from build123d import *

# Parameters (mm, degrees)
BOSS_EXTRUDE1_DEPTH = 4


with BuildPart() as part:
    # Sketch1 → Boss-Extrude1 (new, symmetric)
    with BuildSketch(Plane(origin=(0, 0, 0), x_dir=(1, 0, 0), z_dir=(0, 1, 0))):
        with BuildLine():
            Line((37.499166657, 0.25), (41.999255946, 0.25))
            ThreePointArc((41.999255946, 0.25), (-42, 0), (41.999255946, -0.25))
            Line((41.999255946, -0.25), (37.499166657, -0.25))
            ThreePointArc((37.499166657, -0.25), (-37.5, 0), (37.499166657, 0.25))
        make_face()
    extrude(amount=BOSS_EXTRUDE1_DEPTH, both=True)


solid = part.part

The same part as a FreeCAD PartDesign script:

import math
import FreeCAD as App
import Part
import Sketcher
from FreeCAD import Vector
Q = App.Units.Quantity

doc = App.newDocument("Part")
body = doc.addObject("PartDesign::Body", "Body")

# Sketch on XZ plane
sketch1 = doc.addObject("Sketcher::SketchObject", "Sketch")
body.addObject(sketch1)
sketch1.AttachmentSupport = (doc.XZ_Plane, [""])
sketch1.MapMode = "FlatFace"
sketch1.addGeometry(Part.LineSegment(Vector(37.499167, -0.25, 0), Vector(41.999256, -0.25, 0)), False)
sketch1.addGeometry(Part.ArcOfCircle(Part.Circle(Vector(0, 0, 0), Vector(0, 0, 1), 42), math.radians(0.341048), math.radians(359.658952)), False)
sketch1.addGeometry(Part.LineSegment(Vector(41.999256, 0.25, 0), Vector(37.499167, 0.25, 0)), False)
sketch1.addGeometry(Part.ArcOfCircle(Part.Circle(Vector(0, 0, 0), Vector(0, 0, 1), 37.5), math.radians(0.381975), math.radians(359.618025)), False)
sketch1.addConstraint(Sketcher.Constraint("Coincident", 0, 2, 1, 2))
sketch1.addConstraint(Sketcher.Constraint("Coincident", 1, 1, 2, 1))
sketch1.addConstraint(Sketcher.Constraint("Coincident", 2, 2, 3, 1))
sketch1.addConstraint(Sketcher.Constraint("Coincident", 3, 2, 0, 1))
sketch1.addConstraint(Sketcher.Constraint("Horizontal", 0))
sketch1.addConstraint(Sketcher.Constraint("Horizontal", 2))
sketch1.addConstraint(Sketcher.Constraint("Coincident", 1, 3, -1, 1))
sketch1.addConstraint(Sketcher.Constraint("Coincident", 3, 3, -1, 1))
sketch1.addConstraint(Sketcher.Constraint("Vertical", 0, 2, 1, 1))
sketch1.addConstraint(Sketcher.Constraint("Radius", 1, Q("42 mm")))
sketch1.addConstraint(Sketcher.Constraint("Radius", 3, Q("37.5 mm")))
sketch1.addConstraint(Sketcher.Constraint("DistanceY", 0, 2, 1, 1, Q("0.5 mm")))
pad1 = doc.addObject("PartDesign::Pad", "Pad")
body.addObject(pad1)
pad1.Profile = sketch1
pad1.Length = 8
pad1.Midplane = True

doc.recompute()
